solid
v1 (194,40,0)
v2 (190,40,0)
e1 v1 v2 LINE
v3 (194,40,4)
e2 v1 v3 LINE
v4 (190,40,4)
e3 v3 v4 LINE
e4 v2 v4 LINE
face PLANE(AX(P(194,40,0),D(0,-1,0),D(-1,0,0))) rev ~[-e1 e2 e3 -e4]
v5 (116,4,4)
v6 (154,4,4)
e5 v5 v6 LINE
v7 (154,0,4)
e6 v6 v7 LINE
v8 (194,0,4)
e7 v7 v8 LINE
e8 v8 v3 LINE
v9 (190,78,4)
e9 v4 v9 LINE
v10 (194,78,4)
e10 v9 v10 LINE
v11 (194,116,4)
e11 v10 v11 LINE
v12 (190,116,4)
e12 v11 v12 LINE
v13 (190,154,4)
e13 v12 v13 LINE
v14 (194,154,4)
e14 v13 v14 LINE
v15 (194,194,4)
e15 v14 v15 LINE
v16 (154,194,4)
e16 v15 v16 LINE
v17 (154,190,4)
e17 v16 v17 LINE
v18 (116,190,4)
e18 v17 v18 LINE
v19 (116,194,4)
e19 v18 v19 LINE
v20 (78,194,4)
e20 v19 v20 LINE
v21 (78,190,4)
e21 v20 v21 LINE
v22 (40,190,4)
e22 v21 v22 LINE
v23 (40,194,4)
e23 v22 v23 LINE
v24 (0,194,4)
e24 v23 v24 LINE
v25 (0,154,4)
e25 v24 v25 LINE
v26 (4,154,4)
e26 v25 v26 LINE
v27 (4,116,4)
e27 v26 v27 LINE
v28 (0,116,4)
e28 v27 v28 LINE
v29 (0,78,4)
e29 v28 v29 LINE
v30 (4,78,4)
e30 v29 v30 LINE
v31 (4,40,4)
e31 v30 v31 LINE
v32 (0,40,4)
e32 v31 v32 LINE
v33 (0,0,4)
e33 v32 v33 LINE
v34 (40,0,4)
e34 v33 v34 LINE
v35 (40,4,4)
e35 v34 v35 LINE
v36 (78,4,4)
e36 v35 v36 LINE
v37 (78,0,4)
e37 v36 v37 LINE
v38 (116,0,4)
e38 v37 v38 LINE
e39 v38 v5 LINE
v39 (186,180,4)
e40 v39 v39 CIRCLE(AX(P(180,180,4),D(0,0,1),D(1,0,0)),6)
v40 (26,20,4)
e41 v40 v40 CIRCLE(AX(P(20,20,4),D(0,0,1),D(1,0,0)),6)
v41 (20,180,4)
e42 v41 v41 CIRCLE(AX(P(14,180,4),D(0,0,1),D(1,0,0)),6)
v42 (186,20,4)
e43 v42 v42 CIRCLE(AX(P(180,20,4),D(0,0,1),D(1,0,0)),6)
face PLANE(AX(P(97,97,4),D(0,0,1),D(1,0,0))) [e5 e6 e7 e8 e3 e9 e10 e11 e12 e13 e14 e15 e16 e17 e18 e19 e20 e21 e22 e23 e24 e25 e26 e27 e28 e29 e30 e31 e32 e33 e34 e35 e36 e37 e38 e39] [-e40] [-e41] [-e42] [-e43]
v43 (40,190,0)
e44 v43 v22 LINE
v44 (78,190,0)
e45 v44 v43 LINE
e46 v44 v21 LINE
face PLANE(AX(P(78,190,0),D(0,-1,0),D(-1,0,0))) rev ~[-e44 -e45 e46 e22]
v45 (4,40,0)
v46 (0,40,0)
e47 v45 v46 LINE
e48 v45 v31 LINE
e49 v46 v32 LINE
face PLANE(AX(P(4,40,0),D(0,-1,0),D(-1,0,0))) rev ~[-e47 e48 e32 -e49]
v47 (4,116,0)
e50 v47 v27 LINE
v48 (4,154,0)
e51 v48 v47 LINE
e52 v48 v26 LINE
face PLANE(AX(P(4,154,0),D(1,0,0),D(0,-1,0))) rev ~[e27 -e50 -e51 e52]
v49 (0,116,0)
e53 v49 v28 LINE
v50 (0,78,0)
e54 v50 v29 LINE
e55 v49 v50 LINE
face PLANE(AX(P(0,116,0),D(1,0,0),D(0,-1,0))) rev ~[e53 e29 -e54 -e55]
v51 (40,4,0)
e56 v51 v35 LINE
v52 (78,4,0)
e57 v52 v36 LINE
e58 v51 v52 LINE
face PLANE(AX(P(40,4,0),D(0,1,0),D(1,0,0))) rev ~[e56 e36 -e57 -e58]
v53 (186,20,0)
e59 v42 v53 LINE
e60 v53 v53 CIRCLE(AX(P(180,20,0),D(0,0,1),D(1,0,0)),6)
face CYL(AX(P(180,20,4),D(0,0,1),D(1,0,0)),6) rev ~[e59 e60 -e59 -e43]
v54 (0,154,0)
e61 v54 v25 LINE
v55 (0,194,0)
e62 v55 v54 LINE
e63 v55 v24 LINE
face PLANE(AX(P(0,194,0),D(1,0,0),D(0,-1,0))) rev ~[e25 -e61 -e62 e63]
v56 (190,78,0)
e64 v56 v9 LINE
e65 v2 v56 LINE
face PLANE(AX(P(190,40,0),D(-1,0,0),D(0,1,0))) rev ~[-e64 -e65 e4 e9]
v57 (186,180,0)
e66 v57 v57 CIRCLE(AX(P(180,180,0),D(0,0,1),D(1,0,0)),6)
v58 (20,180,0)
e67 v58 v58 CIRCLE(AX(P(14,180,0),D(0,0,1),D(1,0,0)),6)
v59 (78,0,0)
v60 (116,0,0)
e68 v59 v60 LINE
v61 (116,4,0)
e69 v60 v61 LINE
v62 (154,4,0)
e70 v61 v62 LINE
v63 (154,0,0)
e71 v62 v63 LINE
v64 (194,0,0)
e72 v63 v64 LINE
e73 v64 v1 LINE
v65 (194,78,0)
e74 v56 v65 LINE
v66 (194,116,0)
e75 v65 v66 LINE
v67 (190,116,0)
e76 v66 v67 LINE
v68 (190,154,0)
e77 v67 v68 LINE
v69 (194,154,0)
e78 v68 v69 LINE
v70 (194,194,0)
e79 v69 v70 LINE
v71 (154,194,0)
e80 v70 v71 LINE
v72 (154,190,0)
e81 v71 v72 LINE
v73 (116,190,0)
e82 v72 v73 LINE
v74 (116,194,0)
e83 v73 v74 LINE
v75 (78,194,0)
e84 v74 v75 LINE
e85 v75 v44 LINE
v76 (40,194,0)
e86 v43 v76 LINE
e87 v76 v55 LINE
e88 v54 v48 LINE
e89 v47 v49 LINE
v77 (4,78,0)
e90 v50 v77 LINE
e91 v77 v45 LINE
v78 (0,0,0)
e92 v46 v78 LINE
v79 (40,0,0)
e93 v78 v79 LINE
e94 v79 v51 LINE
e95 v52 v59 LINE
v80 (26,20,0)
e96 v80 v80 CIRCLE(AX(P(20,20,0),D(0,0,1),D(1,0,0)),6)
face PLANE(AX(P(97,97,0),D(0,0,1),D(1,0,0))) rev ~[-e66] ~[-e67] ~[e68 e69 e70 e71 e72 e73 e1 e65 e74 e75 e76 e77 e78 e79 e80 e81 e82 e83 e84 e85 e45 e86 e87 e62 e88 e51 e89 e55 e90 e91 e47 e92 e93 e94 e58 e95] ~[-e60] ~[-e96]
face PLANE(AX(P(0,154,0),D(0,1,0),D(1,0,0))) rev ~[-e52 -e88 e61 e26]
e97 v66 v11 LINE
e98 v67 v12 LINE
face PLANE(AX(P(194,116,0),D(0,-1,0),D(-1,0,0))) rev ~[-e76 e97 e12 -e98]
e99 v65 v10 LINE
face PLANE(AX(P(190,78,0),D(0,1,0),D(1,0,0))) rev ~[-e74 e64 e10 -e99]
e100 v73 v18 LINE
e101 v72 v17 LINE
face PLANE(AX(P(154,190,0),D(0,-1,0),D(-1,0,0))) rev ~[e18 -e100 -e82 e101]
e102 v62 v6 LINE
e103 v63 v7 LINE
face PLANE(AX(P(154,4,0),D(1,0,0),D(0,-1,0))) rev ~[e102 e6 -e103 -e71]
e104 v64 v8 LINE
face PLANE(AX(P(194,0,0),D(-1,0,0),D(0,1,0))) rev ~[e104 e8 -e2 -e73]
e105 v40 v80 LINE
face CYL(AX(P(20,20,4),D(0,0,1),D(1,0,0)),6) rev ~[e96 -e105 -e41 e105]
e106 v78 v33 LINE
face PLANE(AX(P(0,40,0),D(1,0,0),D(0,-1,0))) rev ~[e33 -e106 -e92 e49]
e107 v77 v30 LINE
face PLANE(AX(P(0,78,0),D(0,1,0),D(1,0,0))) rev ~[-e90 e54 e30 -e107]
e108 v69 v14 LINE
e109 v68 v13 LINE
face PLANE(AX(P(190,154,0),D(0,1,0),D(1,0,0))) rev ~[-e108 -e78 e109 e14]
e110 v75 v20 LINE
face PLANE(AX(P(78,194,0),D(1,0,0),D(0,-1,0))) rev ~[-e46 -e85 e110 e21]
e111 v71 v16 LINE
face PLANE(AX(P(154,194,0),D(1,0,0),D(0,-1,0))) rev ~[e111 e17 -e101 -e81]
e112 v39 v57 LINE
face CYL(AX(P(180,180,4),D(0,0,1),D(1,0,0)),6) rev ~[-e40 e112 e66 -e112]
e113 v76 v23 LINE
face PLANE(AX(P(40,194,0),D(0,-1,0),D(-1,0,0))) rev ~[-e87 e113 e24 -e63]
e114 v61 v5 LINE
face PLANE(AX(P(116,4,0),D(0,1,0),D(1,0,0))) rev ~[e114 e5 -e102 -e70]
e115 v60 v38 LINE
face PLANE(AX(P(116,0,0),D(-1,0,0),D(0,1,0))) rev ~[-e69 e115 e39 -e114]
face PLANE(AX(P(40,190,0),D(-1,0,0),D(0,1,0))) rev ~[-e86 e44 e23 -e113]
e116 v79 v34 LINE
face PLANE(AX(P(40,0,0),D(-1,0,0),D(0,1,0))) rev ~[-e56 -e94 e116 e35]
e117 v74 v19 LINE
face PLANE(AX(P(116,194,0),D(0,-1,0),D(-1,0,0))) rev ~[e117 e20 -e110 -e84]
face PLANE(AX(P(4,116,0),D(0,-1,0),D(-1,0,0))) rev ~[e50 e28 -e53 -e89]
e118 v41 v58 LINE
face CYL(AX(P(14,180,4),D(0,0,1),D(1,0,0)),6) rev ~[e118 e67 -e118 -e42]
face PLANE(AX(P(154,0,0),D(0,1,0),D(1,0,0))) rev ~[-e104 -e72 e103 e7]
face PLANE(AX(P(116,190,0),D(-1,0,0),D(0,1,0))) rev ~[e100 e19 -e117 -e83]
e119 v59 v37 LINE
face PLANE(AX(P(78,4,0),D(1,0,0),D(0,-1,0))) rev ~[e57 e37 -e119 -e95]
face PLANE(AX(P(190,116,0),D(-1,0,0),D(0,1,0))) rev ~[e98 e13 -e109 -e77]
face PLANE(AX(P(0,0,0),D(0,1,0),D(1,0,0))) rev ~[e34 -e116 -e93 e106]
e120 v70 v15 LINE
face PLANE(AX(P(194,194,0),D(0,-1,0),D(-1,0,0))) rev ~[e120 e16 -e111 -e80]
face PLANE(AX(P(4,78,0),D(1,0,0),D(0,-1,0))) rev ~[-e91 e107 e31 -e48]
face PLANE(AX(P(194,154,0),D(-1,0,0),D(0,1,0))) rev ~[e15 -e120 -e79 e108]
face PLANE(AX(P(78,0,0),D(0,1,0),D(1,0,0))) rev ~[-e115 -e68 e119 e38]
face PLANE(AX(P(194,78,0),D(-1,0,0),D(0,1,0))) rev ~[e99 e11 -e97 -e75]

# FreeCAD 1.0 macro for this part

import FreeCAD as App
import Part
import Sketcher
from FreeCAD import Vector

doc = App.newDocument("Part")
params = doc.addObject("Spreadsheet::Sheet", "Params")
for row, (alias, value) in enumerate([
    ("sketch1_width", "40 mm"),
    ("sketch1_width2", "38 mm"),
    ("sketch1_width3", "4 mm"),
    ("pad1_length", "4 mm"),
    ("sketch2_diameter", "12 mm"),
    ("pocket1_length", "4 mm"),
], start=1):
    params.set(f"A{row}", alias)
    params.set(f"B{row}", "=" + value)
    params.setAlias(f"B{row}", alias)

body = doc.addObject("PartDesign::Body", "Body")

# Sketch on XY plane
sketch1 = body.newObject("Sketcher::SketchObject", "Sketch")
sketch1.AttachmentSupport = (doc.getObject("XY_Plane"), [""])
sketch1.MapMode = "FlatFace"
sketch1.addGeometry([
    Part.LineSegment(Vector(0, 40, 0), Vector(0, 0, 0)),  # 0
    Part.LineSegment(Vector(0, 0, 0), Vector(40, 0, 0)),  # 1
    Part.LineSegment(Vector(40, 0, 0), Vector(40, 4, 0)),  # 2
    Part.LineSegment(Vector(40, 4, 0), Vector(78, 4, 0)),  # 3
    Part.LineSegment(Vector(78, 4, 0), Vector(78, 0, 0)),  # 4
    Part.LineSegment(Vector(78, 0, 0), Vector(116, 0, 0)),  # 5
    Part.LineSegment(Vector(116, 0, 0), Vector(116, 4, 0)),  # 6
    Part.LineSegment(Vector(116, 4, 0), Vector(154, 4, 0)),  # 7
    Part.LineSegment(Vector(154, 4, 0), Vector(154, 0, 0)),  # 8
    Part.LineSegment(Vector(154, 0, 0), Vector(194, 0, 0)),  # 9
    Part.LineSegment(Vector(194, 0, 0), Vector(194, 40, 0)),  # 10
    Part.LineSegment(Vector(194, 40, 0), Vector(190, 40, 0)),  # 11
    Part.LineSegment(Vector(190, 40, 0), Vector(190, 78, 0)),  # 12
    Part.LineSegment(Vector(190, 78, 0), Vector(194, 78, 0)),  # 13
    Part.LineSegment(Vector(194, 78, 0), Vector(194, 116, 0)),  # 14
    Part.LineSegment(Vector(194, 116, 0), Vector(190, 116, 0)),  # 15
    Part.LineSegment(Vector(190, 116, 0), Vector(190, 154, 0)),  # 16
    Part.LineSegment(Vector(190, 154, 0), Vector(194, 154, 0)),  # 17
    Part.LineSegment(Vector(194, 154, 0), Vector(194, 194, 0)),  # 18
    Part.LineSegment(Vector(194, 194, 0), Vector(154, 194, 0)),  # 19
    Part.LineSegment(Vector(154, 194, 0), Vector(154, 190, 0)),  # 20
    Part.LineSegment(Vector(154, 190, 0), Vector(116, 190, 0)),  # 21
    Part.LineSegment(Vector(116, 190, 0), Vector(116, 194, 0)),  # 22
    Part.LineSegment(Vector(116, 194, 0), Vector(78, 194, 0)),  # 23
    Part.LineSegment(Vector(78, 194, 0), Vector(78, 190, 0)),  # 24
    Part.LineSegment(Vector(78, 190, 0), Vector(40, 190, 0)),  # 25
    Part.LineSegment(Vector(40, 190, 0), Vector(40, 194, 0)),  # 26
    Part.LineSegment(Vector(40, 194, 0), Vector(0, 194, 0)),  # 27
    Part.LineSegment(Vector(0, 194, 0), Vector(0, 154, 0)),  # 28
    Part.LineSegment(Vector(0, 154, 0), Vector(4, 154, 0)),  # 29
    Part.LineSegment(Vector(4, 154, 0), Vector(4, 116, 0)),  # 30
    Part.LineSegment(Vector(4, 116, 0), Vector(0, 116, 0)),  # 31
    Part.LineSegment(Vector(0, 116, 0), Vector(0, 78, 0)),  # 32
    Part.LineSegment(Vector(0, 78, 0), Vector(4, 78, 0)),  # 33
    Part.LineSegment(Vector(4, 78, 0), Vector(4, 40, 0)),  # 34
    Part.LineSegment(Vector(4, 40, 0), Vector(0, 40, 0)),  # 35
], False)
sketch1.addConstraint([
    Sketcher.Constraint("Coincident", 0, 2, 1, 1),
    Sketcher.Constraint("Coincident", 1, 2, 2, 1),
    Sketcher.Constraint("Coincident", 2, 2, 3, 1),
    Sketcher.Constraint("Coincident", 3, 2, 4, 1),
    Sketcher.Constraint("Coincident", 4, 2, 5, 1),
    Sketcher.Constraint("Coincident", 5, 2, 6, 1),
    Sketcher.Constraint("Coincident", 6, 2, 7, 1),
    Sketcher.Constraint("Coincident", 7, 2, 8, 1),
    Sketcher.Constraint("Coincident", 8, 2, 9, 1),
    Sketcher.Constraint("Coincident", 9, 2, 10, 1),
    Sketcher.Constraint("Coincident", 10, 2, 11, 1),
    Sketcher.Constraint("Coincident", 11, 2, 12, 1),
    Sketcher.Constraint("Coincident", 12, 2, 13, 1),
    Sketcher.Constraint("Coincident", 13, 2, 14, 1),
    Sketcher.Constraint("Coincident", 14, 2, 15, 1),
    Sketcher.Constraint("Coincident", 15, 2, 16, 1),
    Sketcher.Constraint("Coincident", 16, 2, 17, 1),
    Sketcher.Constraint("Coincident", 17, 2, 18, 1),
    Sketcher.Constraint("Coincident", 18, 2, 19, 1),
    Sketcher.Constraint("Coincident", 19, 2, 20, 1),
    Sketcher.Constraint("Coincident", 20, 2, 21, 1),
    Sketcher.Constraint("Coincident", 21, 2, 22, 1),
    Sketcher.Constraint("Coincident", 22, 2, 23, 1),
    Sketcher.Constraint("Coincident", 23, 2, 24, 1),
    Sketcher.Constraint("Coincident", 24, 2, 25, 1),
    Sketcher.Constraint("Coincident", 25, 2, 26, 1),
    Sketcher.Constraint("Coincident", 26, 2, 27, 1),
    Sketcher.Constraint("Coincident", 27, 2, 28, 1),
    Sketcher.Constraint("Coincident", 28, 2, 29, 1),
    Sketcher.Constraint("Coincident", 29, 2, 30, 1),
    Sketcher.Constraint("Coincident", 30, 2, 31, 1),
    Sketcher.Constraint("Coincident", 31, 2, 32, 1),
    Sketcher.Constraint("Coincident", 32, 2, 33, 1),
    Sketcher.Constraint("Coincident", 33, 2, 34, 1),
    Sketcher.Constraint("Coincident", 34, 2, 35, 1),
    Sketcher.Constraint("Coincident", 35, 2, 0, 1),
    Sketcher.Constraint("Vertical", 0),
    Sketcher.Constraint("Horizontal", 1),
    Sketcher.Constraint("Vertical", 2),
    Sketcher.Constraint("Horizontal", 3),
    Sketcher.Constraint("Vertical", 4),
    Sketcher.Constraint("Horizontal", 5),
    Sketcher.Constraint("Vertical", 6),
    Sketcher.Constraint("Horizontal", 7),
    Sketcher.Constraint("Vertical", 8),
    Sketcher.Constraint("Horizontal", 9),
    Sketcher.Constraint("Vertical", 10),
    Sketcher.Constraint("Horizontal", 11),
    Sketcher.Constraint("Vertical", 12),
    Sketcher.Constraint("Horizontal", 13),
    Sketcher.Constraint("Vertical", 14),
    Sketcher.Constraint("Horizontal", 15),
    Sketcher.Constraint("Vertical", 16),
    Sketcher.Constraint("Horizontal", 17),
    Sketcher.Constraint("Vertical", 18),
    Sketcher.Constraint("Horizontal", 19),
    Sketcher.Constraint("Vertical", 20),
    Sketcher.Constraint("Horizontal", 21),
    Sketcher.Constraint("Vertical", 22),
    Sketcher.Constraint("Horizontal", 23),
    Sketcher.Constraint("Vertical", 24),
    Sketcher.Constraint("Horizontal", 25),
    Sketcher.Constraint("Vertical", 26),
    Sketcher.Constraint("Horizontal", 27),
    Sketcher.Constraint("Vertical", 28),
    Sketcher.Constraint("Horizontal", 29),
    Sketcher.Constraint("Vertical", 30),
    Sketcher.Constraint("Horizontal", 31),
    Sketcher.Constraint("Vertical", 32),
    Sketcher.Constraint("Horizontal", 33),
    Sketcher.Constraint("Vertical", 34),
    Sketcher.Constraint("Horizontal", 35),
    Sketcher.Constraint("Coincident", 0, 2, -1, 1),
    Sketcher.Constraint("PointOnObject", 4, 2, -1),
    Sketcher.Constraint("PointOnObject", 8, 2, -1),
    Sketcher.Constraint("PointOnObject", 27, 2, -2),
    Sketcher.Constraint("PointOnObject", 31, 2, -2),
    Sketcher.Constraint("Horizontal", 3, 2, 6, 2),
    Sketcher.Constraint("Horizontal", 19, 2, 22, 2),
    Sketcher.Constraint("Horizontal", 21, 2, 24, 2),
    Sketcher.Constraint("Horizontal", 23, 2, 26, 2),
    Sketcher.Constraint("Horizontal", 17, 2, 28, 2),
    Sketcher.Constraint("Horizontal", 15, 2, 30, 2),
    Sketcher.Constraint("Horizontal", 13, 2, 32, 2),
    Sketcher.Constraint("Horizontal", 11, 2, 34, 2),
    Sketcher.Constraint("Vertical", 10, 2, 13, 2),
    Sketcher.Constraint("Vertical", 12, 2, 15, 2),
    Sketcher.Constraint("Vertical", 14, 2, 17, 2),
    Sketcher.Constraint("Vertical", 8, 2, 19, 2),
    Sketcher.Constraint("Vertical", 6, 2, 21, 2),
    Sketcher.Constraint("Vertical", 4, 2, 23, 2),
    Sketcher.Constraint("Vertical", 2, 2, 25, 2),
    Sketcher.Constraint("Vertical", 30, 2, 33, 2),
    Sketcher.Constraint("Equal", 3, 5),
    Sketcher.Constraint("Equal", 5, 7),
    Sketcher.Constraint("Equal", 1, 9),
    Sketcher.Constraint("Equal", 17, 29),
    Sketcher.Constraint("Equal", 27, 0),
    Sketcher.Constraint("Equal", 35, 2),
    Sketcher.Constraint("Equal", 25, 12),
    Sketcher.Constraint("Equal", 12, 14),
    Sketcher.Constraint("Equal", 14, 16),
    Sketcher.Constraint("Equal", 10, 18),
    Sketcher.Constraint("Equal", 8, 20),
    Sketcher.Constraint("DistanceX", 1, 1, 1, 2, 40.0),
    Sketcher.Constraint("DistanceX", 3, 1, 3, 2, 38.0),
    Sketcher.Constraint("DistanceX", 11, 2, 11, 1, 4.0),
])
sketch1.setExpression("Constraints[104]", "Params.sketch1_width")
sketch1.setExpression("Constraints[105]", "Params.sketch1_width2")
sketch1.setExpression("Constraints[106]", "Params.sketch1_width3")
pad1 = body.newObject("PartDesign::Pad", "Pad")
pad1.Profile = sketch1
pad1.setExpression("Length", "Params.pad1_length")

# Sketch on XY plane
sketch2 = body.newObject("Sketcher::SketchObject", "Sketch001")
sketch2.AttachmentSupport = (doc.getObject("XY_Plane"), [""])
sketch2.MapMode = "FlatFace"
sketch2.AttachmentOffset = App.Placement(Vector(0, 0, 4), App.Rotation())
sketch2.addGeometry([
    Part.Circle(Vector(14, 180, 0), Vector(0, 0, 1), 6),
    Part.Circle(Vector(180, 180, 0), Vector(0, 0, 1), 6),
    Part.Circle(Vector(180, 20, 0), Vector(0, 0, 1), 6),
    Part.Circle(Vector(20, 20, 0), Vector(0, 0, 1), 6),
], False)
sketch2.addConstraint([
    Sketcher.Constraint("Equal", 0, 1),
    Sketcher.Constraint("Equal", 1, 2),
    Sketcher.Constraint("Equal", 2, 3),
    Sketcher.Constraint("Horizontal", 0, 3, 1, 3),
    Sketcher.Constraint("Horizontal", 2, 3, 3, 3),
    Sketcher.Constraint("Vertical", 1, 3, 2, 3),
    Sketcher.Constraint("Diameter", 0, 12.0),
    Sketcher.Constraint("DistanceX", -1, 1, 0, 3, 14.0),
    Sketcher.Constraint("DistanceY", -1, 1, 0, 3, 180.0),
    Sketcher.Constraint("DistanceX", -1, 1, 1, 3, 180.0),
    Sketcher.Constraint("DistanceY", -1, 1, 2, 3, 20.0),
    Sketcher.Constraint("DistanceX", -1, 1, 3, 3, 20.0),
])
sketch2.setExpression("Constraints[6]", "Params.sketch2_diameter")
pocket1 = body.newObject("PartDesign::Pocket", "Pocket")
pocket1.Profile = sketch2
pocket1.setExpression("Length", "Params.pocket1_length")

doc.recompute()
